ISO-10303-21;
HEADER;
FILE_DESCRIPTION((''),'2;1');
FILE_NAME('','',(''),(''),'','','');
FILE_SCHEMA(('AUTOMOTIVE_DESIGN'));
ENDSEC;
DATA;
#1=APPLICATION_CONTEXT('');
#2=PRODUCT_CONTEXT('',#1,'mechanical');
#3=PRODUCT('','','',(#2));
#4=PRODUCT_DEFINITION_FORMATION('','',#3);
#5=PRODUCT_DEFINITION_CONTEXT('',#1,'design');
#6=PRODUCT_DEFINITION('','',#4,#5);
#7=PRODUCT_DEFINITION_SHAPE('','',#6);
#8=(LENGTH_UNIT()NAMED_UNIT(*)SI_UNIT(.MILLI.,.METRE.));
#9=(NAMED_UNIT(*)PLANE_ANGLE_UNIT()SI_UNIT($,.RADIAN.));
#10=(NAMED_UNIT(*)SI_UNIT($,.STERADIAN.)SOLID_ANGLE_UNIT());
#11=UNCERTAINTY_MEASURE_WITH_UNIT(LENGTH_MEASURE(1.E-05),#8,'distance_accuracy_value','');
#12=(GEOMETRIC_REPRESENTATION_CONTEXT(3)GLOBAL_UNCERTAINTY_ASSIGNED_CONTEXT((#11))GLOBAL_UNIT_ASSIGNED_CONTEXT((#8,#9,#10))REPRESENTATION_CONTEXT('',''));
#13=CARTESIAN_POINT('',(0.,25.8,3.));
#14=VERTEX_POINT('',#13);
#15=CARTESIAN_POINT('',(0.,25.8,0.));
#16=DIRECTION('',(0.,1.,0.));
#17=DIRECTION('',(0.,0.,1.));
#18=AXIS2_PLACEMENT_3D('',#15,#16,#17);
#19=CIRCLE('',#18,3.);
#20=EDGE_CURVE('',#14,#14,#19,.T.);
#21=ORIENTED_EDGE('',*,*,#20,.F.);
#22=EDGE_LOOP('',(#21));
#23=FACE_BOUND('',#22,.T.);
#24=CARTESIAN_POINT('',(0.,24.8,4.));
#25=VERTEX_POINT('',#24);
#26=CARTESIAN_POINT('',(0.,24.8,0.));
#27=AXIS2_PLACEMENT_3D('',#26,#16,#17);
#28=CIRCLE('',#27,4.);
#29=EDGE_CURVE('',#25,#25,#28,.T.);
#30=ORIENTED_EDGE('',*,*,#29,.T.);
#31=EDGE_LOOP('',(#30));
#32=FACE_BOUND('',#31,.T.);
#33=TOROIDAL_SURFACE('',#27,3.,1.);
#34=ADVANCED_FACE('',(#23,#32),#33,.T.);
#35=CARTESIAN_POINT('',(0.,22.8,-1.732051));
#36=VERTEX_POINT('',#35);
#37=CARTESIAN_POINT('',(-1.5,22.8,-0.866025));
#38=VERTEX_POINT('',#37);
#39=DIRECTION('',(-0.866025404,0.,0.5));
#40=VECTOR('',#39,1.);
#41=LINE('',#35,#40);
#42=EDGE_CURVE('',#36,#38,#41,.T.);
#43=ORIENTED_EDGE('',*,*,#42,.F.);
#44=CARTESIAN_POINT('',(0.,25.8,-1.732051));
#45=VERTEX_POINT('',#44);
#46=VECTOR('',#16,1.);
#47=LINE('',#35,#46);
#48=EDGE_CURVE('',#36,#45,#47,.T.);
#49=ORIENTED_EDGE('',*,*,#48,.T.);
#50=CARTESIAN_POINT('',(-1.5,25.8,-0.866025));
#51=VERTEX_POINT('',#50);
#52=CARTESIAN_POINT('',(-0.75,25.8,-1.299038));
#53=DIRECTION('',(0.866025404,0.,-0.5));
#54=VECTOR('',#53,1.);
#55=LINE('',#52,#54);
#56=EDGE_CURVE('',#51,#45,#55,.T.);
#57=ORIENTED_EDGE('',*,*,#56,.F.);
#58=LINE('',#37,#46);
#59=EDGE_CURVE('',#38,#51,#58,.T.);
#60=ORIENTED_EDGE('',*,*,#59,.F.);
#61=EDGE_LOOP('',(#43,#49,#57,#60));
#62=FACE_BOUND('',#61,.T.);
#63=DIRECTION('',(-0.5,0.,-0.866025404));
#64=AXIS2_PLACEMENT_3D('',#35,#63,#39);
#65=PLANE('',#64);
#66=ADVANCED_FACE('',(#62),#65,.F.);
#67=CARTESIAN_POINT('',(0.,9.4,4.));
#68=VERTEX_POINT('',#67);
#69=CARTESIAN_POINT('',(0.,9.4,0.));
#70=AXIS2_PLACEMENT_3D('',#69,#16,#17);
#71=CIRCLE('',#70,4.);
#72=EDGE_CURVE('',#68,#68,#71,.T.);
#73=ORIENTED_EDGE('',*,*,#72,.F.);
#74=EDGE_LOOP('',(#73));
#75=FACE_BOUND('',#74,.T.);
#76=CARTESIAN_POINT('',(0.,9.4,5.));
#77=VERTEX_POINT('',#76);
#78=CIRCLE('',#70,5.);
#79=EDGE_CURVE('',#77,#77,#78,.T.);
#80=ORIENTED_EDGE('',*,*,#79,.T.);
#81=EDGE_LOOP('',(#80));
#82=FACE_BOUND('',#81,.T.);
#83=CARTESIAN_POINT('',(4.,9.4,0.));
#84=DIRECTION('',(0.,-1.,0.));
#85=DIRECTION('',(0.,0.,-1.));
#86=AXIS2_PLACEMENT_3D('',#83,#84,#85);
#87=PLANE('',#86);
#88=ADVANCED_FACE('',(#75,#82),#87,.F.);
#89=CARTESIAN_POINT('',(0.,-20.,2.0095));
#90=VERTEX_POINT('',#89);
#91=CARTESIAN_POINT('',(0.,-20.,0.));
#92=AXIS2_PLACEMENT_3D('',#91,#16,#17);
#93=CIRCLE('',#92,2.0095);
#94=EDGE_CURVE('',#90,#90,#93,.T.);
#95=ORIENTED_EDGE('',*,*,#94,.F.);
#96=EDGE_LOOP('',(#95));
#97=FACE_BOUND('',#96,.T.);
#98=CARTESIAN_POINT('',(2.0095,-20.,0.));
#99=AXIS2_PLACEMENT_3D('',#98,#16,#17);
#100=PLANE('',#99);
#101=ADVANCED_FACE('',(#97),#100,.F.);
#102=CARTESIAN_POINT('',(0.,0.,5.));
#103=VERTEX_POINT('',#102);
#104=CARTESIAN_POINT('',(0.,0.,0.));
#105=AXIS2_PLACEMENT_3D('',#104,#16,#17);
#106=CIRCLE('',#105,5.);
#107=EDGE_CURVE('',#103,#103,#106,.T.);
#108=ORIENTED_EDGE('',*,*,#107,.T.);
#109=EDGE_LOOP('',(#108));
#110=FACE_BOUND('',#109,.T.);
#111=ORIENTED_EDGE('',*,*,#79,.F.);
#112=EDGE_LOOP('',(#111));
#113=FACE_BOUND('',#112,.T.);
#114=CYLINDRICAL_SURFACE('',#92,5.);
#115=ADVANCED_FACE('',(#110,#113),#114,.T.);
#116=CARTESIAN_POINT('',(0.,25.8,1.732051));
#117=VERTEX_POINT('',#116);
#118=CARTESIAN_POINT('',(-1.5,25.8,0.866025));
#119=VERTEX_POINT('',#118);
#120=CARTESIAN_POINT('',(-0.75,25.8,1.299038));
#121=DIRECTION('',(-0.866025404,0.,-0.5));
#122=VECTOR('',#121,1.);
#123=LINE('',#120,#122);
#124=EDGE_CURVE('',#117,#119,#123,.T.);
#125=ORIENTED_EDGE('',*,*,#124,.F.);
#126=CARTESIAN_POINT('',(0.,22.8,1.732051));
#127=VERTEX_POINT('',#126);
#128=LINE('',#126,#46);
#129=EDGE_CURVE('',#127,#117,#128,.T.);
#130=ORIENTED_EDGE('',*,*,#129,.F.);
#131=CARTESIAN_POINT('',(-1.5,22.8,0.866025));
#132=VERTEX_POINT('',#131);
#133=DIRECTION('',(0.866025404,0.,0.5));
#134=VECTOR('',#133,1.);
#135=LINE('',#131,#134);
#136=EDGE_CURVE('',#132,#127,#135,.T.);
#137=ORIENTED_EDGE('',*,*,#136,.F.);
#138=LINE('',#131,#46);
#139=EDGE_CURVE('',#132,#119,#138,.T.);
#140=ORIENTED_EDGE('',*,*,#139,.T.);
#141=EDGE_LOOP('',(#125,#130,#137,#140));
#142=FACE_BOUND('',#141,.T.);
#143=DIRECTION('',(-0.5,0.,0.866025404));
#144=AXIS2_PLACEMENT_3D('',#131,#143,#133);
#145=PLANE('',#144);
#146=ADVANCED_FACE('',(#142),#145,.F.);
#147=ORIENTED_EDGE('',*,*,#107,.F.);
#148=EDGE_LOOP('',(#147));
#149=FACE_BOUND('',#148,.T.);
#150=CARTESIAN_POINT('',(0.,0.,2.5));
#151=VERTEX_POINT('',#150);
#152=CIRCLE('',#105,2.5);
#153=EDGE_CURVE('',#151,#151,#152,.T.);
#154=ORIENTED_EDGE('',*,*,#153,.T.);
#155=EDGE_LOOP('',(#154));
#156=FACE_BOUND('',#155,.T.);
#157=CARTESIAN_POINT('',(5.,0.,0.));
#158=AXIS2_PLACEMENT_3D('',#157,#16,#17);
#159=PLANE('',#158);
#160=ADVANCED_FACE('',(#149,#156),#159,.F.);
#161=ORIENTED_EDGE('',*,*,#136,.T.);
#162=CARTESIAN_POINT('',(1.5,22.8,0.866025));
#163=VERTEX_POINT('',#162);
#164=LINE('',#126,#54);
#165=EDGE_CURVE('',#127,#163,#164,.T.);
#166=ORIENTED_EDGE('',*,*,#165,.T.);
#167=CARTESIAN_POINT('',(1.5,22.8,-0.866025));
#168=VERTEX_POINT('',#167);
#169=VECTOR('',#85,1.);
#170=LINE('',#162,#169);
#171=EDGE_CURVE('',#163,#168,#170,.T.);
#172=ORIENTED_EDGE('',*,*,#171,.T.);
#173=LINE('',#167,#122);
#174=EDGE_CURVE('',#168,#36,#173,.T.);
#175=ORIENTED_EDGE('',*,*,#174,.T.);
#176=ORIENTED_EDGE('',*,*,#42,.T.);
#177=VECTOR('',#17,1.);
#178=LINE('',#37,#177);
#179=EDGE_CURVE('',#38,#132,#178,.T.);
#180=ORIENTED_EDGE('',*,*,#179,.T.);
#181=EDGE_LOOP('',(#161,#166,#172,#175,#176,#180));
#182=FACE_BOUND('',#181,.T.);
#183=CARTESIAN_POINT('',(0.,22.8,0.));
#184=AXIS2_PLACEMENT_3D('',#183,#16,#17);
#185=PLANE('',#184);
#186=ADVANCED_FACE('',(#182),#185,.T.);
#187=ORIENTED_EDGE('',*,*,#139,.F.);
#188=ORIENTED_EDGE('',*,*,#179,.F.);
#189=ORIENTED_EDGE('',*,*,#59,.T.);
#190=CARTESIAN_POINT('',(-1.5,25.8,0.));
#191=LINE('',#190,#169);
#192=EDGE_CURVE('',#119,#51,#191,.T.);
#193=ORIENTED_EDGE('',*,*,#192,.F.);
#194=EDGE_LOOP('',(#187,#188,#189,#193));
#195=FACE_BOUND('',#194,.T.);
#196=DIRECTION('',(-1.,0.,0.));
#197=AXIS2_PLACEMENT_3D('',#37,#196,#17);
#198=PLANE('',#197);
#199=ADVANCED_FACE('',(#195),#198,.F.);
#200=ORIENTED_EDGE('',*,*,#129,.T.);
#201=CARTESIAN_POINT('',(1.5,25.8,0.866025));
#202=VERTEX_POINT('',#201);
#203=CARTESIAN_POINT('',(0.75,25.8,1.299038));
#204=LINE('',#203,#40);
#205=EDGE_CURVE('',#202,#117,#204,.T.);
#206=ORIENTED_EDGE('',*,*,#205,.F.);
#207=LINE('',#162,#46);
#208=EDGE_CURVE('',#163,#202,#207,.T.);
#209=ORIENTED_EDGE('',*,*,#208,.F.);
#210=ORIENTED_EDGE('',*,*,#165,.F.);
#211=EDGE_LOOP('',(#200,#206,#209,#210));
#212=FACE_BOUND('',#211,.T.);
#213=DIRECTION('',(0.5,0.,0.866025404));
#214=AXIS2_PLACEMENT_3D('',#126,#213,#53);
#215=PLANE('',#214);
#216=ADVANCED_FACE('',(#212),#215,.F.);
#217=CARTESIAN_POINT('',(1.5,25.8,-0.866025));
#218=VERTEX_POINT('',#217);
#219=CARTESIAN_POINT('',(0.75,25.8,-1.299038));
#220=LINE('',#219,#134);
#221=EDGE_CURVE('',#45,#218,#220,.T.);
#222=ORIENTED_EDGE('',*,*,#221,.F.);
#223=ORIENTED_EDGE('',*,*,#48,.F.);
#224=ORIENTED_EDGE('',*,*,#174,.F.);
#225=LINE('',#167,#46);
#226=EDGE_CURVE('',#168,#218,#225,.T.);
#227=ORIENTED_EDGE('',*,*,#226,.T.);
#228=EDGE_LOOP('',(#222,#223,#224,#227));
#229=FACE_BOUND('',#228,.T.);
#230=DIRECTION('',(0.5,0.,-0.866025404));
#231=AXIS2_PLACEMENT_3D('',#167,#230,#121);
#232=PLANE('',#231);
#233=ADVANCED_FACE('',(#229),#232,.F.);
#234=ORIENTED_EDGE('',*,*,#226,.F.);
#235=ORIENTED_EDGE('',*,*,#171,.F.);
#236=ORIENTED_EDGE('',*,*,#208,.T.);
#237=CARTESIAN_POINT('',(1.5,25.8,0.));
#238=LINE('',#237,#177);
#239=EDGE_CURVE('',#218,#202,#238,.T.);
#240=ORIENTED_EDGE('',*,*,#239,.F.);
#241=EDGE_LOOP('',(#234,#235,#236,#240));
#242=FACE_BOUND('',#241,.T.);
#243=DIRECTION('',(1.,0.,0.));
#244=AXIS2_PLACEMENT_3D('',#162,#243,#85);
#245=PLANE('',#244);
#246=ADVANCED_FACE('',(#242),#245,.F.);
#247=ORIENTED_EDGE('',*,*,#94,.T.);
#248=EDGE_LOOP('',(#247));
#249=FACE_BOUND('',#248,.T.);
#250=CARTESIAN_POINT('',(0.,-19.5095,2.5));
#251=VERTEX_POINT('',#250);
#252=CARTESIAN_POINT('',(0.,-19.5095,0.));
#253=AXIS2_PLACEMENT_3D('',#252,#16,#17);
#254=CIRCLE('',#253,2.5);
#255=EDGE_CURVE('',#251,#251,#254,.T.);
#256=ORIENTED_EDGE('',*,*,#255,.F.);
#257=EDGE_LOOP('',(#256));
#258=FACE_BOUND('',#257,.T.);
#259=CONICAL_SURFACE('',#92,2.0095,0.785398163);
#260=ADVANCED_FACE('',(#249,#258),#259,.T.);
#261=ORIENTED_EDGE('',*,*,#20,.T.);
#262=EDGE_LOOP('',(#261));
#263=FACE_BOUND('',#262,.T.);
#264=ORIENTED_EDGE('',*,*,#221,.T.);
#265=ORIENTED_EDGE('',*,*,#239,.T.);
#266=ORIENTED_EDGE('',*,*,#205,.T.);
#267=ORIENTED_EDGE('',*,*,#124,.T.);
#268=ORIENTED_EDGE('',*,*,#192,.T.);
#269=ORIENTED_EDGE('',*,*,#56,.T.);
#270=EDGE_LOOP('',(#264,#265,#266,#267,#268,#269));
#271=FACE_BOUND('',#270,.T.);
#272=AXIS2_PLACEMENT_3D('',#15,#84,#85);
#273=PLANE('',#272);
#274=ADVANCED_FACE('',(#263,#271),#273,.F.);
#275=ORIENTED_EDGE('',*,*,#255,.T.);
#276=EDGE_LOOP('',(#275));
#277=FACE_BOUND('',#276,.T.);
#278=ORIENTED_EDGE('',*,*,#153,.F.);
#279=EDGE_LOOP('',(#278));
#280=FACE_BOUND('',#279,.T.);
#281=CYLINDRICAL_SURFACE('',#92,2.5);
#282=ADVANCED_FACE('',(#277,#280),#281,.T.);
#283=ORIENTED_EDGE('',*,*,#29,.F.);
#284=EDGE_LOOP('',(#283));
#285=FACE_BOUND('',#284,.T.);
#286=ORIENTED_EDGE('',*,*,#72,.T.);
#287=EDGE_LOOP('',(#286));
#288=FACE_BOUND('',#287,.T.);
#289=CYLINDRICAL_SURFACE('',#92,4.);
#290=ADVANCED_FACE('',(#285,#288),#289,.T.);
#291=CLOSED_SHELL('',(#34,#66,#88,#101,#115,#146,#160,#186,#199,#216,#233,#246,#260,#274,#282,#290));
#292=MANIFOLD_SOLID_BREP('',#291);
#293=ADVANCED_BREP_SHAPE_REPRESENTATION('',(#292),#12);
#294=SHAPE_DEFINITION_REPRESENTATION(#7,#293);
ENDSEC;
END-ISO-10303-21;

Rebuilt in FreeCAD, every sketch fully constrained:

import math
import FreeCAD as App
import Part
import Sketcher
from FreeCAD import Vector
Q = App.Units.Quantity


def add_polygon(sketch, points):
    """Adds a closed chain of lines whose ends are joined by coincident constraints."""
    first, n = sketch.GeometryCount, len(points)
    for a, b in zip(points, points[1:] + points[:1]):
        sketch.addGeometry(Part.LineSegment(App.Vector(*a, 0), App.Vector(*b, 0)), False)
    for i in range(n):
        sketch.addConstraint(Sketcher.Constraint("Coincident", first + i, 2, first + (i + 1) % n, 1))

doc = App.newDocument("Part")
body = doc.addObject("PartDesign::Body", "Body")

# Sketch on XY plane
sketch1 = doc.addObject("Sketcher::SketchObject", "Sketch")
body.addObject(sketch1)
sketch1.AttachmentSupport = (doc.XY_Plane, [""])
sketch1.MapMode = "FlatFace"
sketch1.addGeometry(Part.LineSegment(Vector(3, 25.8, 0), Vector(0, 25.8, 0)), False)
sketch1.addGeometry(Part.LineSegment(Vector(0, 25.8, 0), Vector(0, -20, 0)), False)
sketch1.addGeometry(Part.LineSegment(Vector(0, -20, 0), Vector(2.0095, -20, 0)), False)
sketch1.addGeometry(Part.LineSegment(Vector(2.0095, -20, 0), Vector(2.5, -19.5095, 0)), False)
sketch1.addGeometry(Part.LineSegment(Vector(2.5, -19.5095, 0), Vector(2.5, 0, 0)), False)
sketch1.addGeometry(Part.LineSegment(Vector(2.5, 0, 0), Vector(5, 0, 0)), False)
sketch1.addGeometry(Part.LineSegment(Vector(5, 0, 0), Vector(5, 9.4, 0)), False)
sketch1.addGeometry(Part.LineSegment(Vector(5, 9.4, 0), Vector(4, 9.4, 0)), False)
sketch1.addGeometry(Part.LineSegment(Vector(4, 9.4, 0), Vector(4, 24.8, 0)), False)
sketch1.addGeometry(Part.ArcOfCircle(Part.Circle(Vector(3, 24.8, 0), Vector(0, 0, 1), 1), math.radians(0), math.radians(90)), False)
sketch1.addConstraint(Sketcher.Constraint("Coincident", 0, 2, 1, 1))
sketch1.addConstraint(Sketcher.Constraint("Coincident", 1, 2, 2, 1))
sketch1.addConstraint(Sketcher.Constraint("Coincident", 2, 2, 3, 1))
sketch1.addConstraint(Sketcher.Constraint("Coincident", 3, 2, 4, 1))
sketch1.addConstraint(Sketcher.Constraint("Coincident", 4, 2, 5, 1))
sketch1.addConstraint(Sketcher.Constraint("Coincident", 5, 2, 6, 1))
sketch1.addConstraint(Sketcher.Constraint("Coincident", 6, 2, 7, 1))
sketch1.addConstraint(Sketcher.Constraint("Coincident", 7, 2, 8, 1))
sketch1.addConstraint(Sketcher.Constraint("Tangent", 8, 2, 9, 1))
sketch1.addConstraint(Sketcher.Constraint("Tangent", 9, 2, 0, 1))
sketch1.addConstraint(Sketcher.Constraint("Horizontal", 0))
sketch1.addConstraint(Sketcher.Constraint("Vertical", 1))
sketch1.addConstraint(Sketcher.Constraint("Horizontal", 2))
sketch1.addConstraint(Sketcher.Constraint("Vertical", 4))
sketch1.addConstraint(Sketcher.Constraint("Horizontal", 5))
sketch1.addConstraint(Sketcher.Constraint("Vertical", 6))
sketch1.addConstraint(Sketcher.Constraint("Horizontal", 7))
sketch1.addConstraint(Sketcher.Constraint("Vertical", 8))
sketch1.addConstraint(Sketcher.Constraint("PointOnObject", 0, 2, -2))
sketch1.addConstraint(Sketcher.Constraint("PointOnObject", 4, 2, -1))
sketch1.addConstraint(Sketcher.Constraint("Radius", 9, 1.0))
sketch1.addConstraint(Sketcher.Constraint("DistanceX", 0, 2, 0, 1, 3.0))
sketch1.addConstraint(Sketcher.Constraint("DistanceX", 7, 2, 7, 1, 1.0))
sketch1.addConstraint(Sketcher.Constraint("Angle", 3, Q("45 deg")))
sketch1.addConstraint(Sketcher.Constraint("DistanceX", 5, 1, 5, 2, 2.5))
sketch1.addConstraint(Sketcher.Constraint("DistanceY", 1, 2, 1, 1, 45.8))
sketch1.addConstraint(Sketcher.Constraint("DistanceY", 6, 1, 6, 2, 9.4))
sketch1.addConstraint(Sketcher.Constraint("DistanceY", 8, 1, 8, 2, 15.4))
sketch1.addConstraint(Sketcher.Constraint("DistanceX", 2, 1, 2, 2, 2.0095))
revolution = doc.addObject("PartDesign::Revolution", "Revolution")
body.addObject(revolution)
revolution.Profile = sketch1
revolution.ReferenceAxis = (sketch1, ["V_Axis"])
revolution.Angle = 360

# Sketch on XZ plane
sketch2 = doc.addObject("Sketcher::SketchObject", "Sketch001")
body.addObject(sketch2)
sketch2.AttachmentSupport = (doc.XZ_Plane, [""])
sketch2.MapMode = "FlatFace"
sketch2.AttachmentOffset = App.Placement(Vector(0, 0, -25.8), App.Rotation())
add_polygon(sketch2, [(-1.5, -0.866025), (-1.5, 0.866025), (0, 1.732051), (1.5, 0.866025), (1.5, -0.866025), (0, -1.732051)])  # lines 0-5
sketch2.addConstraint(Sketcher.Constraint("Vertical", 0))
sketch2.addConstraint(Sketcher.Constraint("Vertical", 3))
sketch2.addConstraint(Sketcher.Constraint("Symmetric", 0, 2, 3, 2, -1, 1))
sketch2.addConstraint(Sketcher.Constraint("Symmetric", 1, 2, 4, 2, -1, 1))
sketch2.addConstraint(Sketcher.Constraint("PointOnObject", 1, 2, -2))
sketch2.addConstraint(Sketcher.Constraint("Parallel", 2, 5))
sketch2.addConstraint(Sketcher.Constraint("Horizontal", 0, 2, 2, 2))
sketch2.addConstraint(Sketcher.Constraint("Angle", 1, Q("30 deg")))
sketch2.addConstraint(Sketcher.Constraint("DistanceX", 0, 2, 2, 2, 3.0))
sketch2.addConstraint(Sketcher.Constraint("DistanceY", 0, 1, 0, 2, 1.732051))
pocket1 = doc.addObject("PartDesign::Pocket", "Pocket")
body.addObject(pocket1)
pocket1.Profile = sketch2
pocket1.Type = "TwoLengths"
pocket1.Length = 3
pocket1.Length2 = 3

doc.recompute()
